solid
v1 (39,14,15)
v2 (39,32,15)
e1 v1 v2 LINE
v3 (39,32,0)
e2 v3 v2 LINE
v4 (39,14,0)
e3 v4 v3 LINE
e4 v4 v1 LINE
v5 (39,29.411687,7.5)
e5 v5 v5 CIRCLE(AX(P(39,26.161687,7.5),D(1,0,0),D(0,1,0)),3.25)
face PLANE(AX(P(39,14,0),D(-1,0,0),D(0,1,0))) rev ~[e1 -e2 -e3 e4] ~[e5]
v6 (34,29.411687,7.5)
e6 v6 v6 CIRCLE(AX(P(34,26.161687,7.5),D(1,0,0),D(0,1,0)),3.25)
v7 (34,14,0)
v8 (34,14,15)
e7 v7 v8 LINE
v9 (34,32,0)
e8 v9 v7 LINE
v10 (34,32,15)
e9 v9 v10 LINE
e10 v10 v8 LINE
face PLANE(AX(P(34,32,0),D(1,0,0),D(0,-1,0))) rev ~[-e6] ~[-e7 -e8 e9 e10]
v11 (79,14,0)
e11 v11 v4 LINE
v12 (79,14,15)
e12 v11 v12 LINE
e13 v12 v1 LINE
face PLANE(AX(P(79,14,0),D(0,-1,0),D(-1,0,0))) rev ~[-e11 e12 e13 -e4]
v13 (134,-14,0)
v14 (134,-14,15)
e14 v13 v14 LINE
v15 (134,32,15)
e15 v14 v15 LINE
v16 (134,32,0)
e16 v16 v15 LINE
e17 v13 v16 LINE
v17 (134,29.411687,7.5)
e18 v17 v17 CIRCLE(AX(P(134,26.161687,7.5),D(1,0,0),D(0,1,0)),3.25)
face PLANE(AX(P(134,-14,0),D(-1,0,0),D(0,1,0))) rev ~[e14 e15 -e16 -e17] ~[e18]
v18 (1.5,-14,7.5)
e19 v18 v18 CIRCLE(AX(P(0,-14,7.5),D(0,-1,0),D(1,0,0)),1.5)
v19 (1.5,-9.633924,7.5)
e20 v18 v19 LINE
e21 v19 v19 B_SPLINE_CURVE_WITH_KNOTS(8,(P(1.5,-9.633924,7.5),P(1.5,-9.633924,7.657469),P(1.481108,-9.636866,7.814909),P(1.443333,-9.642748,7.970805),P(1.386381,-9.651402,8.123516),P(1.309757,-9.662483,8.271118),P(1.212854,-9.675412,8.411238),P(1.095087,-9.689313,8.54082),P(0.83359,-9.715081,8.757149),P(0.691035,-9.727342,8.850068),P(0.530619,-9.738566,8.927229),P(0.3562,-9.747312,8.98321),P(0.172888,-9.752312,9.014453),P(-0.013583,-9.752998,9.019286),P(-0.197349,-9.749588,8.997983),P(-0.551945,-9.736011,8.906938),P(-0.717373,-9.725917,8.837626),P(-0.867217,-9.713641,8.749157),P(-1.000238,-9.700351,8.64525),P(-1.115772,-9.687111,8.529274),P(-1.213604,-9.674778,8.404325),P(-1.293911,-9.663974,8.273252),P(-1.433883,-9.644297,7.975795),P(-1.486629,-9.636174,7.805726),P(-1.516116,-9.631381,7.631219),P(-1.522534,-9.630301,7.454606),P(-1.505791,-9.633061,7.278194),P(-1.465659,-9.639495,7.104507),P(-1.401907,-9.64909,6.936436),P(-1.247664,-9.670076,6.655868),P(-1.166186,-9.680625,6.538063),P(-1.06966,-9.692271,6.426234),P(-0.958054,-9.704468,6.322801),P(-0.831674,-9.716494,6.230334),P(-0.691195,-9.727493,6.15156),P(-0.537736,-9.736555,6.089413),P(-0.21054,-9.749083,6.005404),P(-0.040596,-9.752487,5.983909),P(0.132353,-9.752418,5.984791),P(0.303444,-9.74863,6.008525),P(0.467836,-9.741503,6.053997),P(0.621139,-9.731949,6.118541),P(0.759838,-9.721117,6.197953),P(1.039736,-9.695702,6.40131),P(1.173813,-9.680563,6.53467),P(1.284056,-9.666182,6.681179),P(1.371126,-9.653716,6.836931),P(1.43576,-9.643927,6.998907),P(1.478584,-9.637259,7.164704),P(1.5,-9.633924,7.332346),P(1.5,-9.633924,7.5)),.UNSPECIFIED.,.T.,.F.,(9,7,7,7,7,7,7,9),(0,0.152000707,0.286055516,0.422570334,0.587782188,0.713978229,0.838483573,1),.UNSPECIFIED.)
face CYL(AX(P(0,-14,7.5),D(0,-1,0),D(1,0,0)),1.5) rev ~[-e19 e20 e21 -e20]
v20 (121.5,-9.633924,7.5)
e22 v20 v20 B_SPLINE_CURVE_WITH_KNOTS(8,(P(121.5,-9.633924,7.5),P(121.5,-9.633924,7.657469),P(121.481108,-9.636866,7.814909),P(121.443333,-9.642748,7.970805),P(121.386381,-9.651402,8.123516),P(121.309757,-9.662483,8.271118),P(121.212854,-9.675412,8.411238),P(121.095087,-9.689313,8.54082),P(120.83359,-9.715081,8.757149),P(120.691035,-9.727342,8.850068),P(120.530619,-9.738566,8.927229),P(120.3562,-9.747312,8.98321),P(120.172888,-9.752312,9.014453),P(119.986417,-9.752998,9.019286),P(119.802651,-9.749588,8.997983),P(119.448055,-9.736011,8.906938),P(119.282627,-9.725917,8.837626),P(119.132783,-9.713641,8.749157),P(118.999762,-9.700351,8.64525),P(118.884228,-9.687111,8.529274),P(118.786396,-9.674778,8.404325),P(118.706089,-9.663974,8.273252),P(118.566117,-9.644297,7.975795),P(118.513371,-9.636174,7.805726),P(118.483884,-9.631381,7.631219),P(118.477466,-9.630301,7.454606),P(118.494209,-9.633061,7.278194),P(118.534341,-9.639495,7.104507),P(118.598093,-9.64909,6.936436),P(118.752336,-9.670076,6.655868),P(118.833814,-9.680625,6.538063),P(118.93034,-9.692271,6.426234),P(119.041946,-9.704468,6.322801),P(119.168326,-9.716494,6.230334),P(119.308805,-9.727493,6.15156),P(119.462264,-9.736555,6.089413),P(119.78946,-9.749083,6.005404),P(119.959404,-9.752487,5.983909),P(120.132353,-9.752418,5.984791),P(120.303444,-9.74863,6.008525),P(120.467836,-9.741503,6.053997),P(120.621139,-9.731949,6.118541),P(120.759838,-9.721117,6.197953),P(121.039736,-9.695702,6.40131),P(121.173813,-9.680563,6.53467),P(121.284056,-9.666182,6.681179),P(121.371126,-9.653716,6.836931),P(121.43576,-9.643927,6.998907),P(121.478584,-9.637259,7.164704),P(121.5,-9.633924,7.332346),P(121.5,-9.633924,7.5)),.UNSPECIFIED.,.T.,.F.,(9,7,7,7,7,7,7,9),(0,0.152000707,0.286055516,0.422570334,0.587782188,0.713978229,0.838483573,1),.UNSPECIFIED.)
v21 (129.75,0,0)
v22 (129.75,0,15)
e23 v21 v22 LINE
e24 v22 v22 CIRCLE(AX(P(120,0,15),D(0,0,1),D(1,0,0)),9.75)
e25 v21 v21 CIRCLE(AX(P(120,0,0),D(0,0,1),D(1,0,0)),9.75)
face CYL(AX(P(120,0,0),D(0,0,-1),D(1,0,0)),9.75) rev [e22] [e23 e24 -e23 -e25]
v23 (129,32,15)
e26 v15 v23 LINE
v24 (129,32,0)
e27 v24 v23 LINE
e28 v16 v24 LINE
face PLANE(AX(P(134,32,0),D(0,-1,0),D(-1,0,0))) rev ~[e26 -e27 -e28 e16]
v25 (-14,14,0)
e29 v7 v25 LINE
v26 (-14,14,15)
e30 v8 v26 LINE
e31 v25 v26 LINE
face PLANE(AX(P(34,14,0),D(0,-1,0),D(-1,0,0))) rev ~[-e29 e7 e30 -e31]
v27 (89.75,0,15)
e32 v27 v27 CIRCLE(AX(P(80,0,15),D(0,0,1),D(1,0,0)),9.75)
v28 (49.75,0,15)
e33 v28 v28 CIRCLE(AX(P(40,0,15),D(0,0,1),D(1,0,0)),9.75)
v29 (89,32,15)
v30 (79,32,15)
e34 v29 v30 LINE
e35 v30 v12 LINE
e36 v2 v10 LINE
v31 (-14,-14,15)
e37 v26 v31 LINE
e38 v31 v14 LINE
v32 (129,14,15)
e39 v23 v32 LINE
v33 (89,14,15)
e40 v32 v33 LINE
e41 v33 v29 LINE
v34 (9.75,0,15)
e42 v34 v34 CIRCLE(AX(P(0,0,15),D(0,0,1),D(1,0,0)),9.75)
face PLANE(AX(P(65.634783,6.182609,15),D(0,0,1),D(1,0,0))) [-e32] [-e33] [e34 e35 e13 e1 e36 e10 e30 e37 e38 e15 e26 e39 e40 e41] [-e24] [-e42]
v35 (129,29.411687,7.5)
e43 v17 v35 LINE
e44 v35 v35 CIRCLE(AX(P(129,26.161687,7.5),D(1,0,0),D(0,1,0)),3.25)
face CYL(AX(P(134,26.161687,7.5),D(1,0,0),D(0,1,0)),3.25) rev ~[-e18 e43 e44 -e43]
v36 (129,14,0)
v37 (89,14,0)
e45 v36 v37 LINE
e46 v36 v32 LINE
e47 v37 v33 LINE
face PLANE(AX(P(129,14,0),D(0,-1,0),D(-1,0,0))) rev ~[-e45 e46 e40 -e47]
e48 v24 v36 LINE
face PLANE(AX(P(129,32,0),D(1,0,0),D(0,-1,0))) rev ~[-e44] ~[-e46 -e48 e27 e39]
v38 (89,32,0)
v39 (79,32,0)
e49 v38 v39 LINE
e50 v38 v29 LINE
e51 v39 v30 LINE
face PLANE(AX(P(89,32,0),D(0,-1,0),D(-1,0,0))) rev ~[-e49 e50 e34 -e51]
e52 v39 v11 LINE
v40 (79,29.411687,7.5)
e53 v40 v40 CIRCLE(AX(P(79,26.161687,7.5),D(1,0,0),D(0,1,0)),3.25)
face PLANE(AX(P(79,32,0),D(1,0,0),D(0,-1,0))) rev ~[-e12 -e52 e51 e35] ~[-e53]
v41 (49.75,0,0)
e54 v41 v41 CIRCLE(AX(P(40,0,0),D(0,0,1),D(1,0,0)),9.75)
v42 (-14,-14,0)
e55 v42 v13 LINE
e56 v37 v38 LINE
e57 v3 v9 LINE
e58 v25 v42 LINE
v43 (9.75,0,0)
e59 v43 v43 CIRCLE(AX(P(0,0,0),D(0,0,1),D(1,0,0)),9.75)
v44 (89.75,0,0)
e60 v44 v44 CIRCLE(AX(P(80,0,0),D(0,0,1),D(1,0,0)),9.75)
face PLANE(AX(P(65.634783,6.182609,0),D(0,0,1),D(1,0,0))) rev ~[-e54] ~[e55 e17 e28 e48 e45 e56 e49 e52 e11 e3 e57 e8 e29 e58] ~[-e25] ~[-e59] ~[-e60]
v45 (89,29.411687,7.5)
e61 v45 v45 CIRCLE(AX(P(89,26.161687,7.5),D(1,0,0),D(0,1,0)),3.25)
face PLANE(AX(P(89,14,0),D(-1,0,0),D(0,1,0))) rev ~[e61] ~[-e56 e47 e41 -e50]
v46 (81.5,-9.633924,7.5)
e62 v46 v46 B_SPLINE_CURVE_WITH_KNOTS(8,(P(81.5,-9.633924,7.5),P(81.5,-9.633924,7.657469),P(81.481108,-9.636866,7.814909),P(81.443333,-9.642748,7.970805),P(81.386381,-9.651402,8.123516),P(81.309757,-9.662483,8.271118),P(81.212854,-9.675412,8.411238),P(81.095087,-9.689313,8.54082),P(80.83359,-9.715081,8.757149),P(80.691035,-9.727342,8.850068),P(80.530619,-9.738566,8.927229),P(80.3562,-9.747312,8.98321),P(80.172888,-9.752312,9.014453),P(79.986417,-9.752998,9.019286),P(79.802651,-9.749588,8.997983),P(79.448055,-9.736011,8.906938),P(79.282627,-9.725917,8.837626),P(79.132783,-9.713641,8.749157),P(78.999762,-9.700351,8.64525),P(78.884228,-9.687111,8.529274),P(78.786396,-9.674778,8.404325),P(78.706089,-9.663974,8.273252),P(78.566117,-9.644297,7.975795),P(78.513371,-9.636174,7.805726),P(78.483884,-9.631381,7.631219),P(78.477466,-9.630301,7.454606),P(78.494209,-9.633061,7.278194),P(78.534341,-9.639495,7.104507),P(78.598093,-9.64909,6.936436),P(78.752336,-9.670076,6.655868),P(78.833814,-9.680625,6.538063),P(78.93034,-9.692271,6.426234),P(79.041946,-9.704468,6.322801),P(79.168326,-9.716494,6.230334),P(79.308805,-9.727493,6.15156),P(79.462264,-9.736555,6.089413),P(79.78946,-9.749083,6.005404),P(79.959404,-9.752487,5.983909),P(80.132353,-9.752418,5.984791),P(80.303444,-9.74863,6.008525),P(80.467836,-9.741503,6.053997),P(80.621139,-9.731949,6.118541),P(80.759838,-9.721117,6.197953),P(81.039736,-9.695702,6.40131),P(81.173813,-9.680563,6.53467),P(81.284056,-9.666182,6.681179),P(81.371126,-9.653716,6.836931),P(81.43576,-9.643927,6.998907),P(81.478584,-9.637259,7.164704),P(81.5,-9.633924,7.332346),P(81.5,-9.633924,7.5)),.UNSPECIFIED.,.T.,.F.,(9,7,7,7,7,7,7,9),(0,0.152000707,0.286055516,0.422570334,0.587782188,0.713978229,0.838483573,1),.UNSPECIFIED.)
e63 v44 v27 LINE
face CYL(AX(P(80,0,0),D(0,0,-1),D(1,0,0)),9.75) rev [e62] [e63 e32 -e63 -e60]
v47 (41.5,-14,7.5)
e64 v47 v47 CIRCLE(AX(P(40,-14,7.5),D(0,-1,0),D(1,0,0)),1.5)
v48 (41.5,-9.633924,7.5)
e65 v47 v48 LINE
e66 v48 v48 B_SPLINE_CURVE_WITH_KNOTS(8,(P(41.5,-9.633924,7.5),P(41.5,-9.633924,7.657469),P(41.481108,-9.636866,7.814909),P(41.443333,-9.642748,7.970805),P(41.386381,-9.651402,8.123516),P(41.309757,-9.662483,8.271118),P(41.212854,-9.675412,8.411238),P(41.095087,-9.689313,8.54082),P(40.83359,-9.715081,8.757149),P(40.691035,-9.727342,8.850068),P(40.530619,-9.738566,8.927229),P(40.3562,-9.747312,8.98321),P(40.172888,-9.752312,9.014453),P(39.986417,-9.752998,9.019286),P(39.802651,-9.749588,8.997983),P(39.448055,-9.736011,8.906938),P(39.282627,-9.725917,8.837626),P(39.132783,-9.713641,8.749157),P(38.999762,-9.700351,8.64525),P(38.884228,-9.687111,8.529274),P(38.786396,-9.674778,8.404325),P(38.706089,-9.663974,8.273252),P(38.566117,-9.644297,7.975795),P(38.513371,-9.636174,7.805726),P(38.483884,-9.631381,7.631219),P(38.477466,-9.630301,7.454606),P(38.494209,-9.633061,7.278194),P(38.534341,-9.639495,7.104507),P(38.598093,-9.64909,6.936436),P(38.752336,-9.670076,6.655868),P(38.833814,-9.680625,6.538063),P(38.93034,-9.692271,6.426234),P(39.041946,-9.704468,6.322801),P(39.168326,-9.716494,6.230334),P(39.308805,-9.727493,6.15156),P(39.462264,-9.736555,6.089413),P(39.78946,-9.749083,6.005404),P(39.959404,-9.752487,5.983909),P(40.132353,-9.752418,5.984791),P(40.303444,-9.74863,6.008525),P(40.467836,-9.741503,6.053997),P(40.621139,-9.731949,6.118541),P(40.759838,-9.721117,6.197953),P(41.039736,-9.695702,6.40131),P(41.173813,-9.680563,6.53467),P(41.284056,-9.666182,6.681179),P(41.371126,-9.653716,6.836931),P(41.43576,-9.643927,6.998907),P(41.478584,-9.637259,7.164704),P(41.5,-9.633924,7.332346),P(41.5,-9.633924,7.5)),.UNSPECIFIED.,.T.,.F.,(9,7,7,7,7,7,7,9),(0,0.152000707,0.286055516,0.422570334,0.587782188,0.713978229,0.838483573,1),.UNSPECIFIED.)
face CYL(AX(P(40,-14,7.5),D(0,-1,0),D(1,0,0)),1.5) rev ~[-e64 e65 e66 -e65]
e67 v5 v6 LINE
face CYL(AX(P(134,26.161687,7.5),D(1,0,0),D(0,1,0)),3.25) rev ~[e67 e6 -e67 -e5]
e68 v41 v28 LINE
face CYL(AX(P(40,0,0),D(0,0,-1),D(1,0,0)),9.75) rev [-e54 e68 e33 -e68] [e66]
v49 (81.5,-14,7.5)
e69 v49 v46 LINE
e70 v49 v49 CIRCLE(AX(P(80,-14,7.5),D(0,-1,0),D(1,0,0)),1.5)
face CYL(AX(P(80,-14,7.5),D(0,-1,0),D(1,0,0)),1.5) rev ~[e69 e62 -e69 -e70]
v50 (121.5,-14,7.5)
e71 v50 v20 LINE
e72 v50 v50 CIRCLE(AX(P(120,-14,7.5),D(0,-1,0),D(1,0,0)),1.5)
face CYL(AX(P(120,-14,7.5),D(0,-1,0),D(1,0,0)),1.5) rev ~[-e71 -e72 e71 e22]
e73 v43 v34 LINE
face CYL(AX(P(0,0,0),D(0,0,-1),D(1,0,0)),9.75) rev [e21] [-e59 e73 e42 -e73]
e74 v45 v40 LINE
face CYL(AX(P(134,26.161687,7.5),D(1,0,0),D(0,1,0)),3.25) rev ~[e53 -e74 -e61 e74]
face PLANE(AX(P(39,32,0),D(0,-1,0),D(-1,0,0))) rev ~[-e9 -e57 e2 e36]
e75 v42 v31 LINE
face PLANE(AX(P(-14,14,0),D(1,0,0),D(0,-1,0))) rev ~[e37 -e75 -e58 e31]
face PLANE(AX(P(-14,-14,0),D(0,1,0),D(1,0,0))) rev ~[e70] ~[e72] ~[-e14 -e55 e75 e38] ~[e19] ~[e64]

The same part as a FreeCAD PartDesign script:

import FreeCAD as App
import Part
import Sketcher
from FreeCAD import Vector
Q = App.Units.Quantity


def add_polygon(sketch, points):
    """Adds a closed chain of lines whose ends are joined by coincident constraints."""
    first, n = sketch.GeometryCount, len(points)
    for a, b in zip(points, points[1:] + points[:1]):
        sketch.addGeometry(Part.LineSegment(App.Vector(*a, 0), App.Vector(*b, 0)), False)
    for i in range(n):
        sketch.addConstraint(Sketcher.Constraint("Coincident", first + i, 2, first + (i + 1) % n, 1))

doc = App.newDocument("Part")
body = doc.addObject("PartDesign::Body", "Body")

# Sketch on XY plane
sketch1 = body.newObject("Sketcher::SketchObject", "Sketch")
sketch1.AttachmentSupport = (doc.getObject("XY_Plane"), [""])
sketch1.MapMode = "FlatFace"
add_polygon(sketch1, [(34, 14), (-14, 14), (-14, -14), (134, -14), (134, 32), (129, 32), (129, 14), (89, 14), (89, 32), (79, 32), (79, 14), (39, 14), (39, 32), (34, 32)])  # lines 0-13
sketch1.addGeometry(Part.Circle(Vector(0, 0, 0), Vector(0, 0, 1), 10), False)  # 14
sketch1.addGeometry(Part.Circle(Vector(40, 0, 0), Vector(0, 0, 1), 10), False)  # 15
sketch1.addGeometry(Part.Circle(Vector(80, 0, 0), Vector(0, 0, 1), 10), False)  # 16
sketch1.addGeometry(Part.Circle(Vector(120, 0, 0), Vector(0, 0, 1), 10), False)  # 17
sketch1.addConstraint(Sketcher.Constraint("Horizontal", 0))
sketch1.addConstraint(Sketcher.Constraint("Vertical", 1))
sketch1.addConstraint(Sketcher.Constraint("Horizontal", 2))
sketch1.addConstraint(Sketcher.Constraint("Vertical", 3))
sketch1.addConstraint(Sketcher.Constraint("Horizontal", 4))
sketch1.addConstraint(Sketcher.Constraint("Vertical", 5))
sketch1.addConstraint(Sketcher.Constraint("Horizontal", 6))
sketch1.addConstraint(Sketcher.Constraint("Vertical", 7))
sketch1.addConstraint(Sketcher.Constraint("Horizontal", 8))
sketch1.addConstraint(Sketcher.Constraint("Vertical", 9))
sketch1.addConstraint(Sketcher.Constraint("Horizontal", 10))
sketch1.addConstraint(Sketcher.Constraint("Vertical", 11))
sketch1.addConstraint(Sketcher.Constraint("Horizontal", 12))
sketch1.addConstraint(Sketcher.Constraint("Vertical", 13))
sketch1.addConstraint(Sketcher.Constraint("Coincident", 14, 3, -1, 1))
sketch1.addConstraint(Sketcher.Constraint("Equal", 14, 15))
sketch1.addConstraint(Sketcher.Constraint("Equal", 15, 16))
sketch1.addConstraint(Sketcher.Constraint("Equal", 16, 17))
sketch1.addConstraint(Sketcher.Constraint("PointOnObject", 15, 3, -1))
sketch1.addConstraint(Sketcher.Constraint("PointOnObject", 16, 3, -1))
sketch1.addConstraint(Sketcher.Constraint("PointOnObject", 17, 3, -1))
sketch1.addConstraint(Sketcher.Constraint("Horizontal", 0, 2, 5, 2))
sketch1.addConstraint(Sketcher.Constraint("Horizontal", 4, 2, 7, 2))
sketch1.addConstraint(Sketcher.Constraint("Horizontal", 6, 2, 9, 2))
sketch1.addConstraint(Sketcher.Constraint("Horizontal", 8, 2, 11, 2))
sketch1.addConstraint(Sketcher.Constraint("Equal", 6, 10))
sketch1.addConstraint(Sketcher.Constraint("Equal", 4, 12))
sketch1.addConstraint(Sketcher.Constraint("Diameter", 14, Q("19.5 mm")))
sketch1.addConstraint(Sketcher.Constraint("DistanceX", 0, 2, 0, 1, Q("48 mm")))
sketch1.addConstraint(Sketcher.Constraint("DistanceX", 2, 1, 2, 2, Q("148 mm")))
sketch1.addConstraint(Sketcher.Constraint("DistanceX", 4, 2, 4, 1, Q("5 mm")))
sketch1.addConstraint(Sketcher.Constraint("DistanceX", 6, 2, 6, 1, Q("40 mm")))
sketch1.addConstraint(Sketcher.Constraint("DistanceY", 1, 2, 1, 1, Q("28 mm")))
sketch1.addConstraint(Sketcher.Constraint("DistanceY", 3, 1, 3, 2, Q("46 mm")))
sketch1.addConstraint(Sketcher.Constraint("DistanceX", -1, 1, 15, 3, Q("40 mm")))
sketch1.addConstraint(Sketcher.Constraint("DistanceX", -1, 1, 16, 3, Q("80 mm")))
sketch1.addConstraint(Sketcher.Constraint("DistanceX", -1, 1, 17, 3, Q("120 mm")))
sketch1.addConstraint(Sketcher.Constraint("DistanceX", 0, 2, -1, 1, Q("14 mm")))
sketch1.addConstraint(Sketcher.Constraint("DistanceY", -1, 1, 0, 2, Q("14 mm")))
pad1 = body.newObject("PartDesign::Pad", "Pad")
pad1.Profile = sketch1
pad1.Length = 15

# Sketch on YZ plane
sketch2 = body.newObject("Sketcher::SketchObject", "Sketch001")
sketch2.AttachmentSupport = (doc.getObject("YZ_Plane"), [""])
sketch2.MapMode = "FlatFace"
sketch2.AttachmentOffset = App.Placement(Vector(0, 0, 134), App.Rotation())
sketch2.addGeometry(Part.Circle(Vector(26.2, 7.5, 0), Vector(0, 0, 1), 3.2), False)
sketch2.addConstraint(Sketcher.Constraint("Diameter", 0, Q("6.5 mm")))
sketch2.addConstraint(Sketcher.Constraint("DistanceY", -1, 1, 0, 3, Q("7.5 mm")))
sketch2.addConstraint(Sketcher.Constraint("DistanceX", -1, 1, 0, 3, Q("26.161687 mm")))
pocket1 = body.newObject("PartDesign::Pocket", "Pocket")
pocket1.Profile = sketch2
pocket1.Length = 125

# Sketch on XZ plane
sketch3 = body.newObject("Sketcher::SketchObject", "Sketch002")
sketch3.AttachmentSupport = (doc.getObject("XZ_Plane"), [""])
sketch3.MapMode = "FlatFace"
sketch3.AttachmentOffset = App.Placement(Vector(0, 0, 14), App.Rotation())
sketch3.addGeometry(Part.Circle(Vector(120, 7.5, 0), Vector(0, 0, 1), 1.5), False)
sketch3.addGeometry(Part.Circle(Vector(80, 7.5, 0), Vector(0, 0, 1), 1.5), False)
sketch3.addGeometry(Part.Circle(Vector(40, 7.5, 0), Vector(0, 0, 1), 1.5), False)
sketch3.addGeometry(Part.Circle(Vector(0, 7.5, 0), Vector(0, 0, 1), 1.5), False)
sketch3.addConstraint(Sketcher.Constraint("Equal", 0, 1))
sketch3.addConstraint(Sketcher.Constraint("Equal", 1, 2))
sketch3.addConstraint(Sketcher.Constraint("Equal", 2, 3))
sketch3.addConstraint(Sketcher.Constraint("PointOnObject", 3, 3, -2))
sketch3.addConstraint(Sketcher.Constraint("Horizontal", 0, 3, 1, 3))
sketch3.addConstraint(Sketcher.Constraint("Horizontal", 1, 3, 2, 3))
sketch3.addConstraint(Sketcher.Constraint("Horizontal", 2, 3, 3, 3))
sketch3.addConstraint(Sketcher.Constraint("Diameter", 0, Q("3 mm")))
sketch3.addConstraint(Sketcher.Constraint("DistanceX", -1, 1, 0, 3, Q("120 mm")))
sketch3.addConstraint(Sketcher.Constraint("DistanceX", -1, 1, 1, 3, Q("80 mm")))
sketch3.addConstraint(Sketcher.Constraint("DistanceX", -1, 1, 2, 3, Q("40 mm")))
sketch3.addConstraint(Sketcher.Constraint("DistanceY", -1, 1, 0, 3, Q("7.5 mm")))
pocket2 = body.newObject("PartDesign::Pocket", "Pocket001")
pocket2.Profile = sketch3
pocket2.Length = 8

doc.recompute()
